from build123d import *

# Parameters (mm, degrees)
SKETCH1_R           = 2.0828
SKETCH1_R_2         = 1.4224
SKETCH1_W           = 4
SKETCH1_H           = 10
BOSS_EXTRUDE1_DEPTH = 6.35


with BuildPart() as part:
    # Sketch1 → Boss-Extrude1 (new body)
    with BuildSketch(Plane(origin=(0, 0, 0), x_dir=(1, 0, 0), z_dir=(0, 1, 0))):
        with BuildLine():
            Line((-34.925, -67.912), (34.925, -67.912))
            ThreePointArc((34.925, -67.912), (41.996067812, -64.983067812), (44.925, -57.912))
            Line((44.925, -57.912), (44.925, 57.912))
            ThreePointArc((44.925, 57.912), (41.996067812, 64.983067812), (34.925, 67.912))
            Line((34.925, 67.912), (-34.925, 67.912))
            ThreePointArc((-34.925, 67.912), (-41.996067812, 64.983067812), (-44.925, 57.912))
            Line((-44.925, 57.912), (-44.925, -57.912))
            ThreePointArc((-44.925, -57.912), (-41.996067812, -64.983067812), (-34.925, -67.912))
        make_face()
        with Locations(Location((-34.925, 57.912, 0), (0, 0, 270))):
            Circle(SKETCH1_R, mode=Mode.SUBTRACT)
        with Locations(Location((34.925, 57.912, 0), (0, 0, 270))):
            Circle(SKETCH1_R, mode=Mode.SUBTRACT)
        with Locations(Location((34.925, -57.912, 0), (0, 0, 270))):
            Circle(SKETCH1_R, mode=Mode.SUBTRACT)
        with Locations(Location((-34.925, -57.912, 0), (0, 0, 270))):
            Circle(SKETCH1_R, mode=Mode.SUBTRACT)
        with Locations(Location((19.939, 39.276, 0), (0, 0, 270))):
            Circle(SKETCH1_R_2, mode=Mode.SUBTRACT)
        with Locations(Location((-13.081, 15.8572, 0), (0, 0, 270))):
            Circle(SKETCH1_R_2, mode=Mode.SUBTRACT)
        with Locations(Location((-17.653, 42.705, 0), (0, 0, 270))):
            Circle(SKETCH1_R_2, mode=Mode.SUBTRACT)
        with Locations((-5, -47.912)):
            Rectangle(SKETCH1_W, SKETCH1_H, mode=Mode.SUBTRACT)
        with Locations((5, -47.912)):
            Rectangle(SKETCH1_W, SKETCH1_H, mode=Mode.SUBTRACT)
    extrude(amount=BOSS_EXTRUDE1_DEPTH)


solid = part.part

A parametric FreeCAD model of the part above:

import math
import FreeCAD as App
import Part
import Sketcher
Q = App.Units.Quantity


def add_polygon(sketch, points):
    """Adds a closed chain of lines whose ends are joined by coincident constraints."""
    first, n = sketch.GeometryCount, len(points)
    for a, b in zip(points, points[1:] + points[:1]):
        sketch.addGeometry(Part.LineSegment(App.Vector(*a, 0), App.Vector(*b, 0)), False)
    for i in range(n):
        sketch.addConstraint(Sketcher.Constraint("Coincident", first + i, 2, first + (i + 1) % n, 1))

doc = App.newDocument("Part")
body = doc.addObject("PartDesign::Body", "Body")

sketch1 = doc.addObject("Sketcher::SketchObject", "Sketch")
body.addObject(sketch1)
sketch1.AttachmentSupport = (doc.XZ_Plane, [""])
sketch1.MapMode = "FlatFace"
sketch1.addGeometry(Part.LineSegment(App.Vector(-34.9, 67.9, 0), App.Vector(34.9, 67.9, 0)), False)
sketch1.addGeometry(Part.ArcOfCircle(Part.Circle(App.Vector(34.9, 57.9, 0), App.Vector(0, 0, 1), 10), math.radians(0), math.radians(90)), False)
sketch1.addGeometry(Part.LineSegment(App.Vector(44.9, 57.9, 0), App.Vector(44.9, -57.9, 0)), False)
sketch1.addGeometry(Part.ArcOfCircle(Part.Circle(App.Vector(34.9, -57.9, 0), App.Vector(0, 0, 1), 10), math.radians(-90), math.radians(0)), False)
sketch1.addGeometry(Part.LineSegment(App.Vector(34.9, -67.9, 0), App.Vector(-34.9, -67.9, 0)), False)
sketch1.addGeometry(Part.ArcOfCircle(Part.Circle(App.Vector(-34.9, -57.9, 0), App.Vector(0, 0, 1), 10), math.radians(180), math.radians(270)), False)
sketch1.addGeometry(Part.LineSegment(App.Vector(-44.9, -57.9, 0), App.Vector(-44.9, 57.9, 0)), False)
sketch1.addGeometry(Part.ArcOfCircle(Part.Circle(App.Vector(-34.9, 57.9, 0), App.Vector(0, 0, 1), 10), math.radians(90), math.radians(180)), False)
sketch1.addGeometry(Part.Circle(App.Vector(-34.9, 57.9, 0), App.Vector(0, 0, 1), 2.1), False)
add_polygon(sketch1, [(-3, 52.9), (-7, 52.9), (-7, 42.9), (-3, 42.9)])
add_polygon(sketch1, [(7, 52.9), (3, 52.9), (3, 42.9), (7, 42.9)])
sketch1.addGeometry(Part.Circle(App.Vector(34.9, 57.9, 0), App.Vector(0, 0, 1), 2.1), False)
sketch1.addGeometry(Part.Circle(App.Vector(-13.1, -15.9, 0), App.Vector(0, 0, 1), 1.4), False)
sketch1.addGeometry(Part.Circle(App.Vector(-34.9, -57.9, 0), App.Vector(0, 0, 1), 2.1), False)
sketch1.addGeometry(Part.Circle(App.Vector(-17.7, -42.7, 0), App.Vector(0, 0, 1), 1.4), False)
sketch1.addGeometry(Part.Circle(App.Vector(19.9, -39.3, 0), App.Vector(0, 0, 1), 1.4), False)
sketch1.addGeometry(Part.Circle(App.Vector(34.9, -57.9, 0), App.Vector(0, 0, 1), 2.1), False)
sketch1.addConstraint(Sketcher.Constraint("Tangent", 0, 2, 1, 2))
sketch1.addConstraint(Sketcher.Constraint("Tangent", 1, 1, 2, 1))
sketch1.addConstraint(Sketcher.Constraint("Tangent", 2, 2, 3, 2))
sketch1.addConstraint(Sketcher.Constraint("Tangent", 3, 1, 4, 1))
sketch1.addConstraint(Sketcher.Constraint("Tangent", 4, 2, 5, 2))
sketch1.addConstraint(Sketcher.Constraint("Tangent", 5, 1, 6, 1))
sketch1.addConstraint(Sketcher.Constraint("Tangent", 6, 2, 7, 2))
sketch1.addConstraint(Sketcher.Constraint("Tangent", 7, 1, 0, 1))
sketch1.addConstraint(Sketcher.Constraint("Horizontal", 0))
sketch1.addConstraint(Sketcher.Constraint("Vertical", 2))
sketch1.addConstraint(Sketcher.Constraint("Horizontal", 4))
sketch1.addConstraint(Sketcher.Constraint("Vertical", 6))
sketch1.addConstraint(Sketcher.Constraint("Horizontal", 9))
sketch1.addConstraint(Sketcher.Constraint("Vertical", 10))
sketch1.addConstraint(Sketcher.Constraint("Horizontal", 11))
sketch1.addConstraint(Sketcher.Constraint("Vertical", 12))
sketch1.addConstraint(Sketcher.Constraint("Horizontal", 13))
sketch1.addConstraint(Sketcher.Constraint("Vertical", 14))
sketch1.addConstraint(Sketcher.Constraint("Horizontal", 15))
sketch1.addConstraint(Sketcher.Constraint("Vertical", 16))
sketch1.addConstraint(Sketcher.Constraint("Coincident", 8, 3, 7, 3))
sketch1.addConstraint(Sketcher.Constraint("Coincident", 17, 3, 1, 3))
sketch1.addConstraint(Sketcher.Constraint("Coincident", 19, 3, 5, 3))
sketch1.addConstraint(Sketcher.Constraint("Coincident", 22, 3, 3, 3))
sketch1.addConstraint(Sketcher.Constraint("Equal", 1, 3))
sketch1.addConstraint(Sketcher.Constraint("Equal", 3, 5))
sketch1.addConstraint(Sketcher.Constraint("Equal", 5, 7))
sketch1.addConstraint(Sketcher.Constraint("Equal", 8, 17))
sketch1.addConstraint(Sketcher.Constraint("Equal", 17, 19))
sketch1.addConstraint(Sketcher.Constraint("Equal", 18, 20))
sketch1.addConstraint(Sketcher.Constraint("Equal", 20, 21))
sketch1.addConstraint(Sketcher.Constraint("Equal", 19, 22))
sketch1.addConstraint(Sketcher.Constraint("Symmetric", 1, 3, 5, 3, -1, 1))
sketch1.addConstraint(Sketcher.Constraint("Symmetric", 12, 2, 13, 2, -2))
sketch1.addConstraint(Sketcher.Constraint("Symmetric", 10, 2, 15, 2, -2))
sketch1.addConstraint(Sketcher.Constraint("Diameter", 8, Q("0.164 in")))
sketch1.addConstraint(Sketcher.Constraint("Diameter", 18, Q("0.112 in")))
sketch1.addConstraint(Sketcher.Constraint("DistanceX", 0, 1, 0, 2, Q("2.75 in")))
sketch1.addConstraint(Sketcher.Constraint("DistanceY", 2, 2, 2, 1, Q("4.56 in")))
sketch1.addConstraint(Sketcher.Constraint("DistanceX", 18, 3, 21, 3, Q("1.3 in")))
sketch1.addConstraint(Sketcher.Constraint("Radius", 1, 10.0))
sketch1.addConstraint(Sketcher.Constraint("DistanceX", 5, 3, 18, 3, Q("0.86 in")))
sketch1.addConstraint(Sketcher.Constraint("DistanceX", 5, 3, 20, 3, Q("0.68 in")))
sketch1.addConstraint(Sketcher.Constraint("DistanceY", 20, 3, 18, 3, Q("1.057 in")))
sketch1.addConstraint(Sketcher.Constraint("DistanceY", 20, 3, 21, 3, Q("0.135 in")))
sketch1.addConstraint(Sketcher.Constraint("DistanceY", 18, 3, 0, 2, Q("3.298 in")))
sketch1.addConstraint(Sketcher.Constraint("DistanceX", 9, 2, 9, 1, 4.0))
sketch1.addConstraint(Sketcher.Constraint("DistanceY", 10, 2, 10, 1, 10.0))
sketch1.addConstraint(Sketcher.Constraint("DistanceX", 9, 2, -1, 1, 7.0))
sketch1.addConstraint(Sketcher.Constraint("DistanceY", -1, 1, 9, 2, 52.912))
pad1 = doc.addObject("PartDesign::Pad", "Pad")
body.addObject(pad1)
pad1.Profile = sketch1
pad1.Length = Q("0.25 in")
pad1.Reversed = True

doc.recompute()
